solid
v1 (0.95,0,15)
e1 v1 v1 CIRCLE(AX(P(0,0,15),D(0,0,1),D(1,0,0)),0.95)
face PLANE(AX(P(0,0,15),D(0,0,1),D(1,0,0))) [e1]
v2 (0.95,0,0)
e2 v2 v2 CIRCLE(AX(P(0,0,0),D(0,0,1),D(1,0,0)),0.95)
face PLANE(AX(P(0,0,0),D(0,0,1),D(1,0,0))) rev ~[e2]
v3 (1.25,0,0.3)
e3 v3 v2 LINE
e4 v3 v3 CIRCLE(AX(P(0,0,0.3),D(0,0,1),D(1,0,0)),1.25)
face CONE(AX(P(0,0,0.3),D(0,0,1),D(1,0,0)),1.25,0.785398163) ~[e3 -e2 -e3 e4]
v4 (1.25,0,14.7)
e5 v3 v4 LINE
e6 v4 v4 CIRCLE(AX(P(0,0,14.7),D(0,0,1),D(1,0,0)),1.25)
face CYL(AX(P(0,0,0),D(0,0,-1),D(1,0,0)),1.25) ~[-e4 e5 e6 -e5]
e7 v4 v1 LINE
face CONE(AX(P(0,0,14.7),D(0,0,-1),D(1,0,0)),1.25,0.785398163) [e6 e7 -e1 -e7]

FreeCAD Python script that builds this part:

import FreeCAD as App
import Part
import Sketcher
from FreeCAD import Vector


def edges_at(feature, points):
    """Names of the edges that pass closest to the given points."""
    edges = feature.Shape.Edges
    near = lambda p: min(range(len(edges)), key=lambda i: edges[i].distToShape(Part.Vertex(*p))[0])
    return sorted({f"Edge{near(p) + 1}" for p in points})

doc = App.newDocument("Part")
body = doc.addObject("PartDesign::Body", "Body")

sketch1 = body.newObject("Sketcher::SketchObject", "Sketch")
sketch1.AttachmentSupport = (doc.getObject("XY_Plane"), [""])
sketch1.MapMode = "FlatFace"
sketch1.addGeometry(Part.Circle(Vector(0, 0, 0), Vector(0, 0, 1), 1.2), False)
sketch1.addConstraint(Sketcher.Constraint("Coincident", 0, 3, -1, 1))
sketch1.addConstraint(Sketcher.Constraint("Diameter", 0, 2.5))
pad1 = body.newObject("PartDesign::Pad", "Pad")
pad1.Profile = sketch1
pad1.Length = 15
doc.recompute()

chamfer = body.newObject("PartDesign::Chamfer", "Chamfer")
chamfer.Base = (pad1, edges_at(pad1, [(-1.25, 0, 15)]))
chamfer.Size = 0.3
doc.recompute()

chamfer2 = body.newObject("PartDesign::Chamfer", "Chamfer001")
chamfer2.Base = (chamfer, edges_at(chamfer, [(-1.25, 0, 0)]))
chamfer2.Size = 0.3

doc.recompute()
